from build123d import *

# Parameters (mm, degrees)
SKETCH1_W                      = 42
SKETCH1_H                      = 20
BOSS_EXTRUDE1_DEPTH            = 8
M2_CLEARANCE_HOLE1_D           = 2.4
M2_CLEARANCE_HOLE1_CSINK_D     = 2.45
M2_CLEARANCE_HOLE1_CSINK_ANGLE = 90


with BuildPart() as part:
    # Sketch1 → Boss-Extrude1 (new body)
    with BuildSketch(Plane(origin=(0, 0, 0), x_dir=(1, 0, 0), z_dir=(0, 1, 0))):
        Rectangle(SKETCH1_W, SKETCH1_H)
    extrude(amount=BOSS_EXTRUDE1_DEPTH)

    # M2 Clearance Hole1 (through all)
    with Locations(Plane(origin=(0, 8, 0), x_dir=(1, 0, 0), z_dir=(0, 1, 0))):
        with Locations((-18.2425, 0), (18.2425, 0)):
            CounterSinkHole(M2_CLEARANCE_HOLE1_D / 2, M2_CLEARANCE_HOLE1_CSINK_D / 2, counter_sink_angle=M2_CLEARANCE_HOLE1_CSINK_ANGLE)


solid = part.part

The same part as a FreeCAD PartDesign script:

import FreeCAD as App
import Part
import Sketcher

doc = App.newDocument("Part")
body = doc.addObject("PartDesign::Body", "Body")

# Sketch on XZ plane
sketch1 = body.newObject("Sketcher::SketchObject", "Sketch")
sketch1.AttachmentSupport = (doc.getObject("XZ_Plane"), [""])
sketch1.MapMode = "FlatFace"
sketch1.addGeometry(Part.LineSegment(App.Vector(-21, -10, 0), App.Vector(-21, 10, 0)), False)
sketch1.addGeometry(Part.LineSegment(App.Vector(-21, 10, 0), App.Vector(21, 10, 0)), False)
sketch1.addGeometry(Part.LineSegment(App.Vector(21, 10, 0), App.Vector(21, -10, 0)), False)
sketch1.addGeometry(Part.LineSegment(App.Vector(21, -10, 0), App.Vector(-21, -10, 0)), False)
sketch1.addConstraint(Sketcher.Constraint("Coincident", 0, 2, 1, 1))
sketch1.addConstraint(Sketcher.Constraint("Coincident", 1, 2, 2, 1))
sketch1.addConstraint(Sketcher.Constraint("Coincident", 2, 2, 3, 1))
sketch1.addConstraint(Sketcher.Constraint("Coincident", 3, 2, 0, 1))
sketch1.addConstraint(Sketcher.Constraint("Vertical", 0))
sketch1.addConstraint(Sketcher.Constraint("Horizontal", 1))
sketch1.addConstraint(Sketcher.Constraint("Vertical", 2))
sketch1.addConstraint(Sketcher.Constraint("Horizontal", 3))
sketch1.addConstraint(Sketcher.Constraint("Symmetric", 0, 2, 2, 2, -1, 1))
sketch1.addConstraint(Sketcher.Constraint("DistanceX", 1, 1, 1, 2, 42.0))
sketch1.addConstraint(Sketcher.Constraint("DistanceY", 0, 1, 0, 2, 20.0))
pad1 = body.newObject("PartDesign::Pad", "Pad")
pad1.Profile = sketch1
pad1.Length = 8
pad1.Reversed = True

# Sketch on XZ plane
sketch2 = body.newObject("Sketcher::SketchObject", "Sketch001")
sketch2.AttachmentSupport = (doc.getObject("XZ_Plane"), [""])
sketch2.MapMode = "FlatFace"
sketch2.AttachmentOffset = App.Placement(App.Vector(0, 0, -8), App.Rotation())
sketch2.addGeometry(Part.Circle(App.Vector(-18.2, 0, 0), App.Vector(0, 0, 1), 1.2), False)
sketch2.addGeometry(Part.Circle(App.Vector(18.2, 0, 0), App.Vector(0, 0, 1), 1.2), False)
sketch2.addConstraint(Sketcher.Constraint("Equal", 0, 1))
sketch2.addConstraint(Sketcher.Constraint("Symmetric", 0, 3, 1, 3, -1, 1))
sketch2.addConstraint(Sketcher.Constraint("PointOnObject", 0, 3, -1))
sketch2.addConstraint(Sketcher.Constraint("Diameter", 0, 2.4))
sketch2.addConstraint(Sketcher.Constraint("DistanceX", 0, 3, 1, 3, 36.485))
doc.recompute()
hole = body.newObject("PartDesign::Hole", "Hole")
hole.Profile = sketch2
hole.ThreadType = "None"
hole.Diameter = 2.4
hole.DepthType = "ThroughAll"
hole.HoleCutType = "Countersink"
hole.HoleCutDiameter = 2.45
hole.HoleCutCountersinkAngle = 90
hole.Reversed = True

doc.recompute()
